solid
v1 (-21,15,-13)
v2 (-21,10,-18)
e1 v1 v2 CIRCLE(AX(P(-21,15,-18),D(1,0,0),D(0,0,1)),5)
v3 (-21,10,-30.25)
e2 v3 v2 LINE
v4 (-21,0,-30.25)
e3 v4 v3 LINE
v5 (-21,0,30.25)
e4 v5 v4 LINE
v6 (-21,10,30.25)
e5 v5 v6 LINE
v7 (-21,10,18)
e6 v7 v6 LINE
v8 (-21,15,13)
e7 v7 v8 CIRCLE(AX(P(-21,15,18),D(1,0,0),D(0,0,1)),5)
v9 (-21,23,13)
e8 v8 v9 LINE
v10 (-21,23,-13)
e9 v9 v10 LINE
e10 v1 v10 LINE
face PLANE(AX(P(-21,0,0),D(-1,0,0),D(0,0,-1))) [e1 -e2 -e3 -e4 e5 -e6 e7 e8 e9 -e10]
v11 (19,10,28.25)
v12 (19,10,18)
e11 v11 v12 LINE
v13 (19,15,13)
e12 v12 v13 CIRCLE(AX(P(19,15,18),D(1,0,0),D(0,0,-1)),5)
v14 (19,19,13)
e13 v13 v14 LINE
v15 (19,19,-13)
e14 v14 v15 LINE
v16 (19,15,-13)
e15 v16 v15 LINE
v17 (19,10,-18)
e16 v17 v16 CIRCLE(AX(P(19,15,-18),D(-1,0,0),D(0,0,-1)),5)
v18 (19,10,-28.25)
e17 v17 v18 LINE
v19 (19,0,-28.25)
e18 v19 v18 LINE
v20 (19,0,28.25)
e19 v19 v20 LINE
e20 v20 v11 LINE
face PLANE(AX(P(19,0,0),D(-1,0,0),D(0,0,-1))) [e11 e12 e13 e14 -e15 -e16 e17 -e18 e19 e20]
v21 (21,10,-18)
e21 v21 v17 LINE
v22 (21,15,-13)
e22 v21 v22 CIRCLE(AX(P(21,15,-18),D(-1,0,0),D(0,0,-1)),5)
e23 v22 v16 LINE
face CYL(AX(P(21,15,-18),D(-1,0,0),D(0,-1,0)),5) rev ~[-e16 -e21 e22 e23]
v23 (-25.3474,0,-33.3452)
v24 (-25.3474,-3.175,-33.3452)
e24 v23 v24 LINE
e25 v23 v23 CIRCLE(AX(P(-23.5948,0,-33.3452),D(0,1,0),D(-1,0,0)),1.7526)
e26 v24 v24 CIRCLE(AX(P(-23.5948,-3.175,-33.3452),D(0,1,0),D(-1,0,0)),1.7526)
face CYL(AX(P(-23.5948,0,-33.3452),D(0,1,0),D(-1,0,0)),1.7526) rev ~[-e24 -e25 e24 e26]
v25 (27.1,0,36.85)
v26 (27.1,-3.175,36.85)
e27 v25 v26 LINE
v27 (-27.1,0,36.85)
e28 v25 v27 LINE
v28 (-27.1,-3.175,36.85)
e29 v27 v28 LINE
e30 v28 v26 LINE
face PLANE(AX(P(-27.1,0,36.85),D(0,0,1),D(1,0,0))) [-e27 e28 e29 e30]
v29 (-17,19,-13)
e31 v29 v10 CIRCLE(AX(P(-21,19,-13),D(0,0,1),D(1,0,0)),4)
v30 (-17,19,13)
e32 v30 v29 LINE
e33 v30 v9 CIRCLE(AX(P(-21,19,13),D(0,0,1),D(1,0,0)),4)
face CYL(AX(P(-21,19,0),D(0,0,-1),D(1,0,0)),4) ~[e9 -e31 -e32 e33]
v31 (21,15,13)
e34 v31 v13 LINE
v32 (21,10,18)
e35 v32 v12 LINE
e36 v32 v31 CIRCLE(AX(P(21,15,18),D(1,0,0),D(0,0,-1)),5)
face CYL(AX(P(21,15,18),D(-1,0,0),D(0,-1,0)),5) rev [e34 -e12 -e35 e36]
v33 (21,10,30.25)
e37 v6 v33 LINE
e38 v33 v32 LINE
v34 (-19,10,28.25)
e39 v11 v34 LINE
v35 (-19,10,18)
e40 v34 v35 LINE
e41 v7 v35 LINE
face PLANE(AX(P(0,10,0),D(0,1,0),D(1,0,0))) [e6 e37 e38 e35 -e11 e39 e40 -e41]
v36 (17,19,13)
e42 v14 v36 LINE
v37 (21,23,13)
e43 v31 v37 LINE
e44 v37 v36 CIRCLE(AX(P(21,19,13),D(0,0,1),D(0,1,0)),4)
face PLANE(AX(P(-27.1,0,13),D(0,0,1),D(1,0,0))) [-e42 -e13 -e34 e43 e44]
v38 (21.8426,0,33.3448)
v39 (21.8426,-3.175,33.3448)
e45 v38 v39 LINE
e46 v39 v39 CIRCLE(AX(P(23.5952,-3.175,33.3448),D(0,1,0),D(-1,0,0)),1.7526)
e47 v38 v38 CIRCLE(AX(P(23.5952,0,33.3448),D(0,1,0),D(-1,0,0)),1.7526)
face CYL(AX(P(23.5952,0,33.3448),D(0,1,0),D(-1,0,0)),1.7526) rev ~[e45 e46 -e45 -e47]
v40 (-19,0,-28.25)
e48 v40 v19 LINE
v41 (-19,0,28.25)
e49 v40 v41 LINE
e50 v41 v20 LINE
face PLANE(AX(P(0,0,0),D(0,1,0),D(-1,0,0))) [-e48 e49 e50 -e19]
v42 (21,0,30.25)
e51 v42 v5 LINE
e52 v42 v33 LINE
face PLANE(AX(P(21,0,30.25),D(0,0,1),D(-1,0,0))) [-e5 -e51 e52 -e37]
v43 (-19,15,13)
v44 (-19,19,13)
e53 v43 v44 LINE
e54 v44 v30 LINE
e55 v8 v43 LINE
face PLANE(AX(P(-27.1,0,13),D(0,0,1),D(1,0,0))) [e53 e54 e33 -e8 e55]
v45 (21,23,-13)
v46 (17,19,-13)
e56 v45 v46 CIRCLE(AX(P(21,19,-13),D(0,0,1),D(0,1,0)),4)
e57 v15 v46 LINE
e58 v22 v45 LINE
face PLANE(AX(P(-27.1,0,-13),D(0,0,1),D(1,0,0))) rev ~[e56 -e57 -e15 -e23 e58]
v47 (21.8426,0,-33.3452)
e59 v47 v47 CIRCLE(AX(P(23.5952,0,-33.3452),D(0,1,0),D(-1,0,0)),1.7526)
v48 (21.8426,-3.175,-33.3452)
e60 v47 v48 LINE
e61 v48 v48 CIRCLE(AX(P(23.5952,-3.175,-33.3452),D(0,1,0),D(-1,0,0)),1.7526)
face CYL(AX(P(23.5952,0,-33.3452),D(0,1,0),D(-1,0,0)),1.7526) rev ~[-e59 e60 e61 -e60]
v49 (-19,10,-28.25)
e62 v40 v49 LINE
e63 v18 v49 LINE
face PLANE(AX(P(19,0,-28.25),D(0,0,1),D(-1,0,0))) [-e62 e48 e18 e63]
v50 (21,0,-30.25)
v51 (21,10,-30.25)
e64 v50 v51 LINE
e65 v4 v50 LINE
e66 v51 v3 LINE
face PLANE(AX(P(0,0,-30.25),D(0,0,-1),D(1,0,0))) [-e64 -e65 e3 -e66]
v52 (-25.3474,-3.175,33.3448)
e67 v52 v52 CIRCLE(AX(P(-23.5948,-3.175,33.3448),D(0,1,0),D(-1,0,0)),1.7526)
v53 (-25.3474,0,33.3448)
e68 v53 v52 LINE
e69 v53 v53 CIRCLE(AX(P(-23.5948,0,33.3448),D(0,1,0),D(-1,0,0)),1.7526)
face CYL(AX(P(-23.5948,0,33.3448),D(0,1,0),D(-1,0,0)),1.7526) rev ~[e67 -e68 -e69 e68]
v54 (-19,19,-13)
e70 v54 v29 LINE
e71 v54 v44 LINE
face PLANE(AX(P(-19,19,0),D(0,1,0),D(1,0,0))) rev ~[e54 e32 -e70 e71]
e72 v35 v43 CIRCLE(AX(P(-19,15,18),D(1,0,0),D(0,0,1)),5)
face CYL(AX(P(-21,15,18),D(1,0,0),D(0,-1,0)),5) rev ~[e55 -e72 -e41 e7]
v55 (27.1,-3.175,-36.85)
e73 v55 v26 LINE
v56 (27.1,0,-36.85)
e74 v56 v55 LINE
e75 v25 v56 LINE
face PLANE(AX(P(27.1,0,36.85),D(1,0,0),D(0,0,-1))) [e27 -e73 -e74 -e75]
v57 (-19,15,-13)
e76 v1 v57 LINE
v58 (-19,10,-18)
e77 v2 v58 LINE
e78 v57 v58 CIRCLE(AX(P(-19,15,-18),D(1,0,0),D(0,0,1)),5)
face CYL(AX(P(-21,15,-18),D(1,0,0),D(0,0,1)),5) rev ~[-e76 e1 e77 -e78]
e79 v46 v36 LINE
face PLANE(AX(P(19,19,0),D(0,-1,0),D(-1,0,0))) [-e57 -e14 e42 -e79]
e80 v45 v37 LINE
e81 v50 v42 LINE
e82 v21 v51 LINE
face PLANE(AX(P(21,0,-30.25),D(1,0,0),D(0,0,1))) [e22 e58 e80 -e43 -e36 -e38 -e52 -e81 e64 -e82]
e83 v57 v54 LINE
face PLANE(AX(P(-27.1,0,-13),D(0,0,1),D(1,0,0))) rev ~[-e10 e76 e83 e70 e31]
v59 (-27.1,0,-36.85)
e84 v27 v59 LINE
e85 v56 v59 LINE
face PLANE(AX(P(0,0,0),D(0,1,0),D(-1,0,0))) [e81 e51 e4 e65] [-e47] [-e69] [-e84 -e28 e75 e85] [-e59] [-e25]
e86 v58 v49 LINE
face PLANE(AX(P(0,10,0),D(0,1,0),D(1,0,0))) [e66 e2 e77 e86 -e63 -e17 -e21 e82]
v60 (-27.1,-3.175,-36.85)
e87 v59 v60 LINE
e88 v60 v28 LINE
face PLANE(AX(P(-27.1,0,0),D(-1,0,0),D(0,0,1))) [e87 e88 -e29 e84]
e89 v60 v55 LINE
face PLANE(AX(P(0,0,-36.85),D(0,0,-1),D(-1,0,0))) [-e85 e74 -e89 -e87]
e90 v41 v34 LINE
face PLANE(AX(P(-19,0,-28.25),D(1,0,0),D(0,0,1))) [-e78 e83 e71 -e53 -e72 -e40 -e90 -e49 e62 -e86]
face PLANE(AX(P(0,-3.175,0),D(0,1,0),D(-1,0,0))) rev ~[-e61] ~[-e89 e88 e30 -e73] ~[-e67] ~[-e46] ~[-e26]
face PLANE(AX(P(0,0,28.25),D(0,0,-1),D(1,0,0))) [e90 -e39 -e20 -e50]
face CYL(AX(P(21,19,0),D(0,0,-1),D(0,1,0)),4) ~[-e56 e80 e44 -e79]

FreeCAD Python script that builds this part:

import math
import FreeCAD as App
import Part
import Sketcher
from FreeCAD import Vector
Q = App.Units.Quantity


def edges_at(feature, points):
    """Names of the edges that pass closest to the given points."""
    edges = feature.Shape.Edges
    near = lambda p: min(range(len(edges)), key=lambda i: edges[i].distToShape(Part.Vertex(*p))[0])
    return sorted({f"Edge{near(p) + 1}" for p in points})

doc = App.newDocument("Part")
body = doc.addObject("PartDesign::Body", "Body")

sketch1 = body.newObject("Sketcher::SketchObject", "Sketch")
sketch1.AttachmentSupport = (doc.getObject("XZ_Plane"), [""])
sketch1.MapMode = "FlatFace"
sketch1.addGeometry([
    Part.LineSegment(Vector(-27, 37, 0), Vector(27, 37, 0)),
    Part.LineSegment(Vector(27, 37, 0), Vector(27, -37, 0)),
    Part.LineSegment(Vector(27, -37, 0), Vector(-27, -37, 0)),
    Part.LineSegment(Vector(-27, -37, 0), Vector(-27, 37, 0)),
], False)
sketch1.addConstraint([
    Sketcher.Constraint("Coincident", 0, 2, 1, 1),
    Sketcher.Constraint("Coincident", 1, 2, 2, 1),
    Sketcher.Constraint("Coincident", 2, 2, 3, 1),
    Sketcher.Constraint("Coincident", 3, 2, 0, 1),
    Sketcher.Constraint("Horizontal", 0),
    Sketcher.Constraint("Vertical", 1),
    Sketcher.Constraint("Horizontal", 2),
    Sketcher.Constraint("Vertical", 3),
    Sketcher.Constraint("Symmetric", 0, 2, 2, 2, -1, 1),
    Sketcher.Constraint("DistanceX", 0, 1, 0, 2, Q("54.2 mm")),
    Sketcher.Constraint("DistanceY", 1, 2, 1, 1, Q("73.7 mm")),
])
pad1 = body.newObject("PartDesign::Pad", "Pad")
pad1.Profile = sketch1
pad1.Length = 3.175

sketch2 = body.newObject("Sketcher::SketchObject", "Sketch001")
sketch2.AttachmentSupport = (doc.getObject("XZ_Plane"), [""])
sketch2.MapMode = "FlatFace"
sketch2.addGeometry([
    Part.LineSegment(Vector(21, -30, 0), Vector(-21, -30, 0)),
    Part.LineSegment(Vector(-21, -30, 0), Vector(-21, 30, 0)),
    Part.LineSegment(Vector(-21, 30, 0), Vector(21, 30, 0)),
    Part.LineSegment(Vector(21, 30, 0), Vector(21, -30, 0)),
    Part.LineSegment(Vector(19, -28, 0), Vector(19, 28, 0)),
    Part.LineSegment(Vector(19, 28, 0), Vector(-19, 28, 0)),
    Part.LineSegment(Vector(-19, 28, 0), Vector(-19, -28, 0)),
    Part.LineSegment(Vector(-19, -28, 0), Vector(19, -28, 0)),
], False)
sketch2.addConstraint([
    Sketcher.Constraint("Coincident", 0, 2, 1, 1),
    Sketcher.Constraint("Coincident", 1, 2, 2, 1),
    Sketcher.Constraint("Coincident", 2, 2, 3, 1),
    Sketcher.Constraint("Coincident", 3, 2, 0, 1),
    Sketcher.Constraint("Coincident", 4, 2, 5, 1),
    Sketcher.Constraint("Coincident", 5, 2, 6, 1),
    Sketcher.Constraint("Coincident", 6, 2, 7, 1),
    Sketcher.Constraint("Coincident", 7, 2, 4, 1),
    Sketcher.Constraint("Horizontal", 0),
    Sketcher.Constraint("Vertical", 1),
    Sketcher.Constraint("Horizontal", 2),
    Sketcher.Constraint("Vertical", 3),
    Sketcher.Constraint("Vertical", 4),
    Sketcher.Constraint("Horizontal", 5),
    Sketcher.Constraint("Vertical", 6),
    Sketcher.Constraint("Horizontal", 7),
    Sketcher.Constraint("Symmetric", 0, 2, 2, 2, -1, 1),
    Sketcher.Constraint("Symmetric", 4, 2, 6, 2, -1, 1),
    Sketcher.Constraint("DistanceX", 5, 2, 5, 1, Q("38 mm")),
    Sketcher.Constraint("DistanceY", 4, 1, 4, 2, Q("56.5 mm")),
    Sketcher.Constraint("DistanceX", 4, 2, 2, 2, Q("2 mm")),
    Sketcher.Constraint("DistanceY", 4, 2, 2, 2, Q("2 mm")),
])
pad2 = body.newObject("PartDesign::Pad", "Pad001")
pad2.Profile = sketch2
pad2.Length = 10
pad2.Reversed = True

sketch3 = body.newObject("Sketcher::SketchObject", "Sketch002")
sketch3.AttachmentSupport = (doc.getObject("XY_Plane"), [""])
sketch3.MapMode = "FlatFace"
sketch3.addGeometry([
    Part.LineSegment(Vector(19, 10, 0), Vector(21, 10, 0)),
    Part.LineSegment(Vector(21, 10, 0), Vector(21, 23, 0)),
    Part.ArcOfCircle(Part.Circle(Vector(21, 19, 0), Vector(0, 0, 1), 4), math.radians(90), math.radians(180)),
    Part.LineSegment(Vector(17, 19, 0), Vector(19, 19, 0)),
    Part.LineSegment(Vector(19, 19, 0), Vector(19, 10, 0)),
    Part.LineSegment(Vector(-21, 23, 0), Vector(-21, 10, 0)),
    Part.LineSegment(Vector(-21, 10, 0), Vector(-19, 10, 0)),
    Part.LineSegment(Vector(-19, 10, 0), Vector(-19, 19, 0)),
    Part.LineSegment(Vector(-19, 19, 0), Vector(-17, 19, 0)),
    Part.ArcOfCircle(Part.Circle(Vector(-21, 19, 0), Vector(0, 0, 1), 4), math.radians(0), math.radians(90)),
], False)
sketch3.addConstraint([
    Sketcher.Constraint("Coincident", 0, 2, 1, 1),
    Sketcher.Constraint("Coincident", 1, 2, 2, 1),
    Sketcher.Constraint("Coincident", 2, 2, 3, 1),
    Sketcher.Constraint("Coincident", 3, 2, 4, 1),
    Sketcher.Constraint("Coincident", 4, 2, 0, 1),
    Sketcher.Constraint("Coincident", 5, 2, 6, 1),
    Sketcher.Constraint("Coincident", 6, 2, 7, 1),
    Sketcher.Constraint("Coincident", 7, 2, 8, 1),
    Sketcher.Constraint("Coincident", 8, 2, 9, 1),
    Sketcher.Constraint("Coincident", 9, 2, 5, 1),
    Sketcher.Constraint("Horizontal", 0),
    Sketcher.Constraint("Vertical", 1),
    Sketcher.Constraint("Horizontal", 3),
    Sketcher.Constraint("Vertical", 4),
    Sketcher.Constraint("Vertical", 5),
    Sketcher.Constraint("Horizontal", 6),
    Sketcher.Constraint("Vertical", 7),
    Sketcher.Constraint("Horizontal", 8),
    Sketcher.Constraint("Equal", 2, 9),
    Sketcher.Constraint("Symmetric", 2, 3, 9, 3, -2),
    Sketcher.Constraint("Symmetric", 0, 2, 5, 2, -2),
    Sketcher.Constraint("Symmetric", 3, 2, 7, 2, -2),
    Sketcher.Constraint("Horizontal", 9, 3, 2, 2),
    Sketcher.Constraint("Vertical", 2, 3, 0, 2),
    Sketcher.Constraint("Equal", 0, 3),
    Sketcher.Constraint("DistanceX", 0, 1, 0, 2, Q("2 mm")),
    Sketcher.Constraint("DistanceY", 1, 1, 1, 2, Q("13 mm")),
    Sketcher.Constraint("DistanceX", -1, 1, 2, 3, Q("21 mm")),
    Sketcher.Constraint("DistanceY", -1, 1, 2, 3, Q("19 mm")),
])
pad3 = body.newObject("PartDesign::Pad", "Pad002")
pad3.Profile = sketch3
pad3.Length = 26
pad3.Midplane = True

sketch4 = body.newObject("Sketcher::SketchObject", "Sketch003")
sketch4.AttachmentSupport = (doc.getObject("XZ_Plane"), [""])
sketch4.MapMode = "FlatFace"
sketch4.addGeometry([
    Part.Circle(Vector(-23.6, 33.3, 0), Vector(0, 0, 1), 1.8),
    Part.Circle(Vector(23.6, 33.3, 0), Vector(0, 0, 1), 1.8),
    Part.Circle(Vector(-23.6, -33.3, 0), Vector(0, 0, 1), 1.8),
    Part.Circle(Vector(23.6, -33.3, 0), Vector(0, 0, 1), 1.8),
], False)
sketch4.addConstraint([
    Sketcher.Constraint("Equal", 0, 1),
    Sketcher.Constraint("Equal", 1, 2),
    Sketcher.Constraint("Equal", 2, 3),
    Sketcher.Constraint("Symmetric", 0, 3, 1, 3, -2),
    Sketcher.Constraint("Symmetric", 2, 3, 3, 3, -2),
    Sketcher.Constraint("Symmetric", 0, 3, 2, 3, -1),
    Sketcher.Constraint("Diameter", 0, Q("3.5052 mm")),
    Sketcher.Constraint("DistanceX", 0, 3, 1, 3, Q("47.19 mm")),
    Sketcher.Constraint("DistanceY", 2, 3, 0, 3, Q("66.69 mm")),
])
pocket1 = body.newObject("PartDesign::Pocket", "Pocket")
pocket1.Profile = sketch4
pocket1.Length = 10
pocket1.Reversed = True
doc.recompute()

fillet = body.newObject("PartDesign::Fillet", "Fillet")
fillet.Base = (pocket1, edges_at(pocket1, [
    (20, 10, -13),
    (-20, 10, -13),
    (20, 10, 13),
    (-20, 10, 13),
]))
fillet.Radius = 5

doc.recompute()
